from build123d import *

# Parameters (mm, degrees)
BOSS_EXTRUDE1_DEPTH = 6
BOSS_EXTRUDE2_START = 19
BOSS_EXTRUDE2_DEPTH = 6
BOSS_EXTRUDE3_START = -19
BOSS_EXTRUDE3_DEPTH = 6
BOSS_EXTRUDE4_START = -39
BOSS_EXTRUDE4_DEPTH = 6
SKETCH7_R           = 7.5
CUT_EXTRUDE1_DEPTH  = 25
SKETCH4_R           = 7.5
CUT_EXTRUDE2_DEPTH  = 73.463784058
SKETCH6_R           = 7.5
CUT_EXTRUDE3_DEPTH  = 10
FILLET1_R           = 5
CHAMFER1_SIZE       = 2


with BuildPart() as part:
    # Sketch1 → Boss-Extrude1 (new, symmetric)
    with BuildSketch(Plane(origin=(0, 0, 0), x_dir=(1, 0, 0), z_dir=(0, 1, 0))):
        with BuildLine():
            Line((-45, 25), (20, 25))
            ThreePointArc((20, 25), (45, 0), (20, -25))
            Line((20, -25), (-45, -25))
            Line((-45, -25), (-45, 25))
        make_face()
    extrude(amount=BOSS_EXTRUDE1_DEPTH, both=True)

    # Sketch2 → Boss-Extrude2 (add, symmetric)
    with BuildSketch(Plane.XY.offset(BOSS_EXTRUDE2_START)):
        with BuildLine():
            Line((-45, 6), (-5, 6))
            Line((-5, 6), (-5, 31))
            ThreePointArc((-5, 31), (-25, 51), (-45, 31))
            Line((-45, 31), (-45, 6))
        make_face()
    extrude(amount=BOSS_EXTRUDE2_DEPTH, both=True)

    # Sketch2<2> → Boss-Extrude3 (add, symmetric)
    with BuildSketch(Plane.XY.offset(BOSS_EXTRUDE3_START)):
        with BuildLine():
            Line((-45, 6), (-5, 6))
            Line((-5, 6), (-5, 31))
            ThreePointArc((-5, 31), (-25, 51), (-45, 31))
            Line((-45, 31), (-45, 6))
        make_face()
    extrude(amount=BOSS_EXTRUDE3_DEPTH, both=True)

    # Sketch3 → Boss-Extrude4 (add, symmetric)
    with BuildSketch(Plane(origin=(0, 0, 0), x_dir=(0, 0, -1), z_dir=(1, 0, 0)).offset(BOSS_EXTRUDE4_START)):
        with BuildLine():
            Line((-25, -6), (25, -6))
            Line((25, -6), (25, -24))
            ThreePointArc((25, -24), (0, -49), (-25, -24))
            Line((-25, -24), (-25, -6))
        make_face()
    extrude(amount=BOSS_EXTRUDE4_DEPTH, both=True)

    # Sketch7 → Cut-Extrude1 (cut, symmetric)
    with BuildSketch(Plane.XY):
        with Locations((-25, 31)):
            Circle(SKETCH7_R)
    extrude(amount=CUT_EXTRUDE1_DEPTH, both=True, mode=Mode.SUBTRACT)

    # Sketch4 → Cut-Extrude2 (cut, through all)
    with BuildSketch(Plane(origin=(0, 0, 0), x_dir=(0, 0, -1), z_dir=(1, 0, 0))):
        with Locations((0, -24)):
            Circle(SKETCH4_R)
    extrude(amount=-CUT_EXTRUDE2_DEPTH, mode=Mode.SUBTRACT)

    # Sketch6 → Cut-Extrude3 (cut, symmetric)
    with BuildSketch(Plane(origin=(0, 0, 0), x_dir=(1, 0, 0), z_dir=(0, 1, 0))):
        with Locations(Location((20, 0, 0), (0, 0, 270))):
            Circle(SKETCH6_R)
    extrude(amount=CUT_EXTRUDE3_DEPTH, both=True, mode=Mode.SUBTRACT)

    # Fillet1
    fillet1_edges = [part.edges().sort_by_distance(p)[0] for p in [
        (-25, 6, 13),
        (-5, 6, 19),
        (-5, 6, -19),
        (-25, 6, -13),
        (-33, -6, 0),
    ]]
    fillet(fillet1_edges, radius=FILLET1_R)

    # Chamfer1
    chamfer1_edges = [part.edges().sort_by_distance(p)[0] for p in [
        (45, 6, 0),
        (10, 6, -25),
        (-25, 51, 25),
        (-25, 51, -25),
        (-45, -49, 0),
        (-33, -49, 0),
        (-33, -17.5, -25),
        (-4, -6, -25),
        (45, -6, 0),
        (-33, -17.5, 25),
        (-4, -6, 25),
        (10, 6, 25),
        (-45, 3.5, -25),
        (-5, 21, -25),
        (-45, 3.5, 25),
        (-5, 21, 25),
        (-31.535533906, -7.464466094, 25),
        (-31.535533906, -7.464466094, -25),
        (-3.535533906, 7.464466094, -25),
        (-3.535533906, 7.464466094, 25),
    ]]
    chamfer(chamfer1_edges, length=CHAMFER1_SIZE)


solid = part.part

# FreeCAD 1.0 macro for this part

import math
import FreeCAD as App
import Part
import Sketcher
from FreeCAD import Vector


def edges_at(feature, points):
    """Names of the edges that pass closest to the given points."""
    edges = feature.Shape.Edges
    near = lambda p: min(range(len(edges)), key=lambda i: edges[i].distToShape(Part.Vertex(*p))[0])
    return sorted({f"Edge{near(p) + 1}" for p in points})

doc = App.newDocument("Part")
body = doc.addObject("PartDesign::Body", "Body")

# Sketch on XZ plane
sketch1 = body.newObject("Sketcher::SketchObject", "Sketch")
sketch1.AttachmentSupport = (doc.getObject("XZ_Plane"), [""])
sketch1.MapMode = "FlatFace"
sketch1.addGeometry([
    Part.LineSegment(Vector(20, -25, 0), Vector(-45, -25, 0)),
    Part.LineSegment(Vector(-45, -25, 0), Vector(-45, 25, 0)),
    Part.LineSegment(Vector(-45, 25, 0), Vector(20, 25, 0)),
    Part.ArcOfCircle(Part.Circle(Vector(20, 0, 0), Vector(0, 0, 1), 25), math.radians(-90), math.radians(90)),
], False)
sketch1.addConstraint([
    Sketcher.Constraint("Coincident", 0, 2, 1, 1),
    Sketcher.Constraint("Coincident", 1, 2, 2, 1),
    Sketcher.Constraint("Tangent", 2, 2, 3, 2),
    Sketcher.Constraint("Tangent", 3, 1, 0, 1),
    Sketcher.Constraint("Horizontal", 0),
    Sketcher.Constraint("Vertical", 1),
    Sketcher.Constraint("Horizontal", 2),
    Sketcher.Constraint("PointOnObject", 3, 3, -1),
    Sketcher.Constraint("Radius", 3, 25.0),
    Sketcher.Constraint("DistanceX", 0, 2, 0, 1, 65.0),
    Sketcher.Constraint("DistanceX", -1, 1, 3, 3, 20.0),
])
pad1 = body.newObject("PartDesign::Pad", "Pad")
pad1.Profile = sketch1
pad1.Length = 12
pad1.Midplane = True

# Sketch on XY plane
sketch2 = body.newObject("Sketcher::SketchObject", "Sketch001")
sketch2.AttachmentSupport = (doc.getObject("XY_Plane"), [""])
sketch2.MapMode = "FlatFace"
sketch2.AttachmentOffset = App.Placement(Vector(0, 0, 19), App.Rotation())
sketch2.addGeometry([
    Part.LineSegment(Vector(-45, 6, 0), Vector(-5, 6, 0)),
    Part.LineSegment(Vector(-5, 6, 0), Vector(-5, 31, 0)),
    Part.ArcOfCircle(Part.Circle(Vector(-25, 31, 0), Vector(0, 0, 1), 20), math.radians(0), math.radians(180)),
    Part.LineSegment(Vector(-45, 31, 0), Vector(-45, 6, 0)),
], False)
sketch2.addConstraint([
    Sketcher.Constraint("Coincident", 0, 2, 1, 1),
    Sketcher.Constraint("Tangent", 1, 2, 2, 1),
    Sketcher.Constraint("Tangent", 2, 2, 3, 1),
    Sketcher.Constraint("Coincident", 3, 2, 0, 1),
    Sketcher.Constraint("Horizontal", 0),
    Sketcher.Constraint("Vertical", 1),
    Sketcher.Constraint("Vertical", 3),
    Sketcher.Constraint("Radius", 2, 20.0),
    Sketcher.Constraint("DistanceY", 1, 1, 1, 2, 25.0),
    Sketcher.Constraint("DistanceX", 2, 3, -1, 1, 25.0),
    Sketcher.Constraint("DistanceY", -1, 1, 2, 3, 31.0),
])
pad2 = body.newObject("PartDesign::Pad", "Pad001")
pad2.Profile = sketch2
pad2.Length = 12
pad2.Midplane = True

# Sketch on XY plane
sketch3 = body.newObject("Sketcher::SketchObject", "Sketch002")
sketch3.AttachmentSupport = (doc.getObject("XY_Plane"), [""])
sketch3.MapMode = "FlatFace"
sketch3.AttachmentOffset = App.Placement(Vector(0, 0, -19), App.Rotation())
sketch3.addGeometry([
    Part.LineSegment(Vector(-45, 6, 0), Vector(-5, 6, 0)),
    Part.LineSegment(Vector(-5, 6, 0), Vector(-5, 31, 0)),
    Part.ArcOfCircle(Part.Circle(Vector(-25, 31, 0), Vector(0, 0, 1), 20), math.radians(0), math.radians(180)),
    Part.LineSegment(Vector(-45, 31, 0), Vector(-45, 6, 0)),
], False)
sketch3.addConstraint([
    Sketcher.Constraint("Coincident", 0, 2, 1, 1),
    Sketcher.Constraint("Tangent", 1, 2, 2, 1),
    Sketcher.Constraint("Tangent", 2, 2, 3, 1),
    Sketcher.Constraint("Coincident", 3, 2, 0, 1),
    Sketcher.Constraint("Horizontal", 0),
    Sketcher.Constraint("Vertical", 1),
    Sketcher.Constraint("Vertical", 3),
    Sketcher.Constraint("Radius", 2, 20.0),
    Sketcher.Constraint("DistanceY", 1, 1, 1, 2, 25.0),
    Sketcher.Constraint("DistanceX", 2, 3, -1, 1, 25.0),
    Sketcher.Constraint("DistanceY", -1, 1, 2, 3, 31.0),
])
pad3 = body.newObject("PartDesign::Pad", "Pad002")
pad3.Profile = sketch3
pad3.Length = 12
pad3.Midplane = True

# Sketch on YZ plane
sketch4 = body.newObject("Sketcher::SketchObject", "Sketch003")
sketch4.AttachmentSupport = (doc.getObject("YZ_Plane"), [""])
sketch4.MapMode = "FlatFace"
sketch4.AttachmentOffset = App.Placement(Vector(0, 0, -39), App.Rotation())
sketch4.addGeometry([
    Part.LineSegment(Vector(-6, -25, 0), Vector(-6, 25, 0)),
    Part.LineSegment(Vector(-6, 25, 0), Vector(-24, 25, 0)),
    Part.ArcOfCircle(Part.Circle(Vector(-24, 0, 0), Vector(0, 0, 1), 25), math.radians(90), math.radians(270)),
    Part.LineSegment(Vector(-24, -25, 0), Vector(-6, -25, 0)),
], False)
sketch4.addConstraint([
    Sketcher.Constraint("Coincident", 0, 2, 1, 1),
    Sketcher.Constraint("Tangent", 1, 2, 2, 1),
    Sketcher.Constraint("Tangent", 2, 2, 3, 1),
    Sketcher.Constraint("Coincident", 3, 2, 0, 1),
    Sketcher.Constraint("Vertical", 0),
    Sketcher.Constraint("Horizontal", 1),
    Sketcher.Constraint("Horizontal", 3),
    Sketcher.Constraint("PointOnObject", 2, 3, -1),
    Sketcher.Constraint("Radius", 2, 25.0),
    Sketcher.Constraint("DistanceX", 1, 2, 1, 1, 18.0),
    Sketcher.Constraint("DistanceX", 2, 3, -1, 1, 24.0),
])
pad4 = body.newObject("PartDesign::Pad", "Pad003")
pad4.Profile = sketch4
pad4.Length = 12
pad4.Midplane = True

# Sketch on XY plane
sketch5 = body.newObject("Sketcher::SketchObject", "Sketch004")
sketch5.AttachmentSupport = (doc.getObject("XY_Plane"), [""])
sketch5.MapMode = "FlatFace"
sketch5.addGeometry(Part.Circle(Vector(-25, 31, 0), Vector(0, 0, 1), 8), False)
sketch5.addConstraint([
    Sketcher.Constraint("Diameter", 0, 15.0),
    Sketcher.Constraint("DistanceX", 0, 3, -1, 1, 25.0),
    Sketcher.Constraint("DistanceY", -1, 1, 0, 3, 31.0),
])
pocket1 = body.newObject("PartDesign::Pocket", "Pocket")
pocket1.Profile = sketch5
pocket1.Length = 50
pocket1.Midplane = True

# Sketch on YZ plane
sketch6 = body.newObject("Sketcher::SketchObject", "Sketch005")
sketch6.AttachmentSupport = (doc.getObject("YZ_Plane"), [""])
sketch6.MapMode = "FlatFace"
sketch6.addGeometry(Part.Circle(Vector(-24, 0, 0), Vector(0, 0, 1), 8), False)
sketch6.addConstraint([
    Sketcher.Constraint("PointOnObject", 0, 3, -1),
    Sketcher.Constraint("Diameter", 0, 15.0),
    Sketcher.Constraint("DistanceX", 0, 3, -1, 1, 24.0),
])
pocket2 = body.newObject("PartDesign::Pocket", "Pocket001")
pocket2.Profile = sketch6
pocket2.Type = "ThroughAll"

# Sketch on XZ plane
sketch7 = body.newObject("Sketcher::SketchObject", "Sketch006")
sketch7.AttachmentSupport = (doc.getObject("XZ_Plane"), [""])
sketch7.MapMode = "FlatFace"
sketch7.addGeometry(Part.Circle(Vector(20, 0, 0), Vector(0, 0, 1), 8), False)
sketch7.addConstraint([
    Sketcher.Constraint("PointOnObject", 0, 3, -1),
    Sketcher.Constraint("Diameter", 0, 15.0),
    Sketcher.Constraint("DistanceX", -1, 1, 0, 3, 20.0),
])
pocket3 = body.newObject("PartDesign::Pocket", "Pocket002")
pocket3.Profile = sketch7
pocket3.Length = 20
pocket3.Midplane = True
doc.recompute()

fillet = body.newObject("PartDesign::Fillet", "Fillet")
fillet.Base = (pocket3, edges_at(pocket3, [
    (-25, 6, 13),
    (-5, 6, 19),
    (-5, 6, -19),
    (-25, 6, -13),
    (-33, -6, 0),
]))
fillet.Radius = 5
doc.recompute()

chamfer = body.newObject("PartDesign::Chamfer", "Chamfer")
chamfer.Base = (fillet, edges_at(fillet, [
    (45, 6, 0),
    (10, 6, -25),
    (-25, 51, 25),
    (-25, 51, -25),
    (-45, -49, 0),
    (-33, -49, 0),
    (-33, -17.5, -25),
    (-4, -6, -25),
    (45, -6, 0),
    (-33, -17.5, 25),
    (-4, -6, 25),
    (10, 6, 25),
    (-45, 3.5, -25),
    (-5, 21, -25),
    (-45, 3.5, 25),
    (-5, 21, 25),
    (-31.536, -7.464, 25),
    (-31.536, -7.464, -25),
    (-3.536, 7.464, -25),
    (-3.536, 7.464, 25),
]))
chamfer.Size = 2

doc.recompute()
